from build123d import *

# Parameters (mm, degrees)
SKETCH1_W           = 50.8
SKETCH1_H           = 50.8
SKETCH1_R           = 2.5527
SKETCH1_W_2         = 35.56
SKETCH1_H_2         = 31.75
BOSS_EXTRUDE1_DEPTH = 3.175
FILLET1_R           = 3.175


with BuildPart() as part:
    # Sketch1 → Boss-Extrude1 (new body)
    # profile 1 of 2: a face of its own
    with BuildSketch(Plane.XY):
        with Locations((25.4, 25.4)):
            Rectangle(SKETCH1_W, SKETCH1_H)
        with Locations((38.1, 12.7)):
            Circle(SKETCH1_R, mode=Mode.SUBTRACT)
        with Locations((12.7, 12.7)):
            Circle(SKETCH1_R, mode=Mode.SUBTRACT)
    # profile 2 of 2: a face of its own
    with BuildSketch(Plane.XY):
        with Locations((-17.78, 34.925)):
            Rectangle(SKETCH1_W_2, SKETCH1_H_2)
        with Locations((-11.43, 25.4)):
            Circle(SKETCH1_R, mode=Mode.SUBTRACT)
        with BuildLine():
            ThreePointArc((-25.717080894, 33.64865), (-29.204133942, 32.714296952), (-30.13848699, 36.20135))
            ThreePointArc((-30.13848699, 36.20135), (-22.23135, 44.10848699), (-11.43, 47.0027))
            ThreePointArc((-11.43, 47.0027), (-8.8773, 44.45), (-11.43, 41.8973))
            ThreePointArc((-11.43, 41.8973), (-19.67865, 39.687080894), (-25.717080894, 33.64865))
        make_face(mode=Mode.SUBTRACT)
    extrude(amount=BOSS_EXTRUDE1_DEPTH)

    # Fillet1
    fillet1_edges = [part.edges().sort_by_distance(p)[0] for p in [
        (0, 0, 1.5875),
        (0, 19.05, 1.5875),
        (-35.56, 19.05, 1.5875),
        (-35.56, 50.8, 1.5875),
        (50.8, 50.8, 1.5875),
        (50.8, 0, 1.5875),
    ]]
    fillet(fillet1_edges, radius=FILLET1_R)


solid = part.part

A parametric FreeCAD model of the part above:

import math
import FreeCAD as App
import Part
import Sketcher
from FreeCAD import Vector
Q = App.Units.Quantity


def edges_at(feature, points):
    """Names of the edges that pass closest to the given points."""
    edges = feature.Shape.Edges
    near = lambda p: min(range(len(edges)), key=lambda i: edges[i].distToShape(Part.Vertex(*p))[0])
    return sorted({f"Edge{near(p) + 1}" for p in points})

doc = App.newDocument("Part")
body = doc.addObject("PartDesign::Body", "Body")

sketch1 = body.newObject("Sketcher::SketchObject", "Sketch")
sketch1.AttachmentSupport = (doc.getObject("XY_Plane"), [""])
sketch1.MapMode = "FlatFace"
sketch1.addGeometry(Part.LineSegment(Vector(0, 19.1, 0), Vector(0, 0, 0)), False)
sketch1.addGeometry(Part.LineSegment(Vector(0, 0, 0), Vector(50.8, 0, 0)), False)
sketch1.addGeometry(Part.LineSegment(Vector(50.8, 0, 0), Vector(50.8, 50.8, 0)), False)
sketch1.addGeometry(Part.LineSegment(Vector(50.8, 50.8, 0), Vector(-35.6, 50.8, 0)), False)
sketch1.addGeometry(Part.LineSegment(Vector(-35.6, 50.8, 0), Vector(-35.6, 19.1, 0)), False)
sketch1.addGeometry(Part.LineSegment(Vector(-35.6, 19.1, 0), Vector(0, 19.1, 0)), False)
sketch1.addGeometry(Part.Circle(Vector(12.7, 12.7, 0), Vector(0, 0, 1), 2.6), False)
sketch1.addGeometry(Part.Circle(Vector(38.1, 12.7, 0), Vector(0, 0, 1), 2.6), False)
sketch1.addGeometry(Part.ArcOfCircle(Part.Circle(Vector(-27.9, 34.9, 0), Vector(0, 0, 1), 2.6), math.radians(150), math.radians(330)), False)
sketch1.addGeometry(Part.ArcOfCircle(Part.Circle(Vector(-11.4, 25.4, 0), Vector(0, 0, 1), 21.6), math.radians(90), math.radians(150)), False)
sketch1.addGeometry(Part.ArcOfCircle(Part.Circle(Vector(-11.4, 44.5, 0), Vector(0, 0, 1), 2.6), math.radians(-90), math.radians(90)), False)
sketch1.addGeometry(Part.ArcOfCircle(Part.Circle(Vector(-11.4, 25.4, 0), Vector(0, 0, 1), 16.5), math.radians(90), math.radians(150)), False)
sketch1.addGeometry(Part.Circle(Vector(-11.4, 25.4, 0), Vector(0, 0, 1), 2.6), False)
sketch1.addConstraint(Sketcher.Constraint("Coincident", 0, 2, 1, 1))
sketch1.addConstraint(Sketcher.Constraint("Coincident", 1, 2, 2, 1))
sketch1.addConstraint(Sketcher.Constraint("Coincident", 2, 2, 3, 1))
sketch1.addConstraint(Sketcher.Constraint("Coincident", 3, 2, 4, 1))
sketch1.addConstraint(Sketcher.Constraint("Coincident", 4, 2, 5, 1))
sketch1.addConstraint(Sketcher.Constraint("Coincident", 5, 2, 0, 1))
sketch1.addConstraint(Sketcher.Constraint("Tangent", 8, 1, 9, 2))
sketch1.addConstraint(Sketcher.Constraint("Tangent", 9, 1, 10, 2))
sketch1.addConstraint(Sketcher.Constraint("Tangent", 10, 1, 11, 1))
sketch1.addConstraint(Sketcher.Constraint("Tangent", 11, 2, 8, 2))
sketch1.addConstraint(Sketcher.Constraint("Vertical", 0))
sketch1.addConstraint(Sketcher.Constraint("Horizontal", 1))
sketch1.addConstraint(Sketcher.Constraint("Vertical", 2))
sketch1.addConstraint(Sketcher.Constraint("Horizontal", 3))
sketch1.addConstraint(Sketcher.Constraint("Vertical", 4))
sketch1.addConstraint(Sketcher.Constraint("Horizontal", 5))
sketch1.addConstraint(Sketcher.Constraint("Coincident", 0, 2, -1, 1))
sketch1.addConstraint(Sketcher.Constraint("Coincident", 11, 3, 9, 3))
sketch1.addConstraint(Sketcher.Constraint("Coincident", 12, 3, 9, 3))
sketch1.addConstraint(Sketcher.Constraint("Equal", 6, 7))
sketch1.addConstraint(Sketcher.Constraint("Equal", 7, 8))
sketch1.addConstraint(Sketcher.Constraint("Equal", 10, 12))
sketch1.addConstraint(Sketcher.Constraint("Horizontal", 6, 3, 7, 3))
sketch1.addConstraint(Sketcher.Constraint("Vertical", 9, 3, 10, 3))
sketch1.addConstraint(Sketcher.Constraint("Equal", 1, 2))
sketch1.addConstraint(Sketcher.Constraint("DistanceX", 1, 1, 1, 2, Q("2 in")))
sketch1.addConstraint(Sketcher.Constraint("Diameter", 6, Q("0.201 in")))
sketch1.addConstraint(Sketcher.Constraint("DistanceX", 3, 2, 3, 1, Q("3.4 in")))
sketch1.addConstraint(Sketcher.Constraint("DistanceY", -1, 1, 9, 3, Q("1 in")))
sketch1.addConstraint(Sketcher.Constraint("DistanceX", 6, 3, 7, 3, Q("1 in")))
sketch1.addConstraint(Sketcher.Constraint("DistanceY", 0, 2, 0, 1, Q("0.75 in")))
sketch1.addConstraint(Sketcher.Constraint("DistanceX", -1, 1, 6, 3, Q("0.5 in")))
sketch1.addConstraint(Sketcher.Constraint("DistanceY", -1, 1, 6, 3, Q("0.5 in")))
sketch1.addConstraint(Sketcher.Constraint("Radius", 9, Q("0.8505 in")))
sketch1.addConstraint(Sketcher.Constraint("DistanceX", 9, 3, -1, 1, Q("0.45 in")))
sketch1.addConstraint(Sketcher.Constraint("DistanceY", -1, 1, 8, 3, Q("1.375 in")))
pad1 = body.newObject("PartDesign::Pad", "Pad")
pad1.Profile = sketch1
pad1.Length = Q("0.125 in")
doc.recompute()

fillet = body.newObject("PartDesign::Fillet", "Fillet")
fillet.Base = (pad1, edges_at(pad1, [
    (0, 0, 1.587),
    (0, 19.05, 1.587),
    (-35.56, 19.05, 1.587),
    (-35.56, 50.8, 1.587),
    (50.8, 50.8, 1.587),
    (50.8, 0, 1.587),
]))
fillet.Radius = Q("0.125 in")

doc.recompute()
